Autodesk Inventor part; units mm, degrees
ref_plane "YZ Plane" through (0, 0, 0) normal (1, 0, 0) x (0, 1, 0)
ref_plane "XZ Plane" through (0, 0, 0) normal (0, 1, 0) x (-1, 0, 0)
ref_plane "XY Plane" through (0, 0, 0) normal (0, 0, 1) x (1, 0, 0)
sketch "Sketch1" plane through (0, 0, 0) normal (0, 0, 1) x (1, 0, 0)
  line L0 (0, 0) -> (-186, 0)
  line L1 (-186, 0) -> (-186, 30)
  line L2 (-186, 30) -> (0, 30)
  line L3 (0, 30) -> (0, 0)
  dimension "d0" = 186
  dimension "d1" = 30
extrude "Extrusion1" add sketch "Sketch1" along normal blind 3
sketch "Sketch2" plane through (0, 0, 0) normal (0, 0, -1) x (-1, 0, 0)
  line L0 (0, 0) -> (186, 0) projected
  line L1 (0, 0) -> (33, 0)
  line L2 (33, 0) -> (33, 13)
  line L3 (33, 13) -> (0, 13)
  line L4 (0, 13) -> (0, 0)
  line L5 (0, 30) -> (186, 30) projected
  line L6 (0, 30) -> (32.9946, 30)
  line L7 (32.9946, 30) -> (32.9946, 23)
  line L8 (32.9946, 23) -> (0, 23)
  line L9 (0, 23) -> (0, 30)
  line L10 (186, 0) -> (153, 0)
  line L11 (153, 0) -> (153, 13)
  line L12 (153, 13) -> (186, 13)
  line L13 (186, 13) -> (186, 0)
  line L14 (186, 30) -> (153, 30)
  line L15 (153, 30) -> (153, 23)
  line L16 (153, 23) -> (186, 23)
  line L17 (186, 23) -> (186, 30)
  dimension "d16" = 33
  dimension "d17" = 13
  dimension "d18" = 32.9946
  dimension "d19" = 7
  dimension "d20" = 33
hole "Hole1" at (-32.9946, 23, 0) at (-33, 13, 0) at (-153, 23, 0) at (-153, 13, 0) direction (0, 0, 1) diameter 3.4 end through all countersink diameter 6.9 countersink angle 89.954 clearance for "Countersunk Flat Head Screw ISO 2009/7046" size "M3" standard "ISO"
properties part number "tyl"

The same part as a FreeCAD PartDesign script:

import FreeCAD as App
import Part
import Sketcher
from FreeCAD import Vector
Q = App.Units.Quantity


def add_polygon(sketch, points):
    """Adds a closed chain of lines whose ends are joined by coincident constraints."""
    first, n = sketch.GeometryCount, len(points)
    for a, b in zip(points, points[1:] + points[:1]):
        sketch.addGeometry(Part.LineSegment(App.Vector(*a, 0), App.Vector(*b, 0)), False)
    for i in range(n):
        sketch.addConstraint(Sketcher.Constraint("Coincident", first + i, 2, first + (i + 1) % n, 1))

doc = App.newDocument("Part")
body = doc.addObject("PartDesign::Body", "Body")

# Sketch on XY plane
sketch1 = body.newObject("Sketcher::SketchObject", "Sketch")
sketch1.AttachmentSupport = (doc.getObject("XY_Plane"), [""])
sketch1.MapMode = "FlatFace"
add_polygon(sketch1, [(-186, 0), (0, 0), (0, 30), (-186, 30)])  # lines 0-3
sketch1.addConstraint([
    Sketcher.Constraint("Horizontal", 0),
    Sketcher.Constraint("Vertical", 1),
    Sketcher.Constraint("Horizontal", 2),
    Sketcher.Constraint("Vertical", 3),
    Sketcher.Constraint("Coincident", 0, 2, -1, 1),
    Sketcher.Constraint("DistanceX", 0, 1, 0, 2, Q("186 mm")),
    Sketcher.Constraint("DistanceY", 1, 1, 1, 2, Q("30 mm")),
])
pad1 = body.newObject("PartDesign::Pad", "Pad")
pad1.Profile = sketch1
pad1.Length = 3

# Sketch on XY plane
sketch2 = body.newObject("Sketcher::SketchObject", "Sketch001")
sketch2.AttachmentSupport = (doc.getObject("XY_Plane"), [""])
sketch2.MapMode = "FlatFace"
sketch2.addGeometry([
    Part.Circle(Vector(-32.9946, 23, 0), Vector(0, 0, 1), 1.7),
    Part.Circle(Vector(-33, 13, 0), Vector(0, 0, 1), 1.7),
    Part.Circle(Vector(-153, 23, 0), Vector(0, 0, 1), 1.7),
    Part.Circle(Vector(-153, 13, 0), Vector(0, 0, 1), 1.7),
], False)
sketch2.addConstraint([
    Sketcher.Constraint("Equal", 0, 1),
    Sketcher.Constraint("Equal", 1, 2),
    Sketcher.Constraint("Equal", 2, 3),
    Sketcher.Constraint("Horizontal", 0, 3, 2, 3),
    Sketcher.Constraint("Horizontal", 1, 3, 3, 3),
    Sketcher.Constraint("Vertical", 2, 3, 3, 3),
    Sketcher.Constraint("Diameter", 0, Q("3.4 mm")),
    Sketcher.Constraint("DistanceY", -1, 1, 0, 3, Q("23 mm")),
    Sketcher.Constraint("DistanceX", 1, 3, -1, 1, Q("33 mm")),
    Sketcher.Constraint("DistanceY", -1, 1, 1, 3, Q("13 mm")),
    Sketcher.Constraint("DistanceX", 2, 3, -1, 1, Q("153 mm")),
    Sketcher.Constraint("DistanceX", 0, 3, -1, 1, Q("32.9946 mm")),
])
doc.recompute()
hole = body.newObject("PartDesign::Hole", "Hole")
hole.Profile = sketch2
hole.ThreadType = "None"
hole.Diameter = 3.4
hole.DepthType = "ThroughAll"
hole.HoleCutType = "Countersink"
hole.HoleCutDiameter = 6.9
hole.HoleCutCountersinkAngle = 89.954
hole.Reversed = True

doc.recompute()
